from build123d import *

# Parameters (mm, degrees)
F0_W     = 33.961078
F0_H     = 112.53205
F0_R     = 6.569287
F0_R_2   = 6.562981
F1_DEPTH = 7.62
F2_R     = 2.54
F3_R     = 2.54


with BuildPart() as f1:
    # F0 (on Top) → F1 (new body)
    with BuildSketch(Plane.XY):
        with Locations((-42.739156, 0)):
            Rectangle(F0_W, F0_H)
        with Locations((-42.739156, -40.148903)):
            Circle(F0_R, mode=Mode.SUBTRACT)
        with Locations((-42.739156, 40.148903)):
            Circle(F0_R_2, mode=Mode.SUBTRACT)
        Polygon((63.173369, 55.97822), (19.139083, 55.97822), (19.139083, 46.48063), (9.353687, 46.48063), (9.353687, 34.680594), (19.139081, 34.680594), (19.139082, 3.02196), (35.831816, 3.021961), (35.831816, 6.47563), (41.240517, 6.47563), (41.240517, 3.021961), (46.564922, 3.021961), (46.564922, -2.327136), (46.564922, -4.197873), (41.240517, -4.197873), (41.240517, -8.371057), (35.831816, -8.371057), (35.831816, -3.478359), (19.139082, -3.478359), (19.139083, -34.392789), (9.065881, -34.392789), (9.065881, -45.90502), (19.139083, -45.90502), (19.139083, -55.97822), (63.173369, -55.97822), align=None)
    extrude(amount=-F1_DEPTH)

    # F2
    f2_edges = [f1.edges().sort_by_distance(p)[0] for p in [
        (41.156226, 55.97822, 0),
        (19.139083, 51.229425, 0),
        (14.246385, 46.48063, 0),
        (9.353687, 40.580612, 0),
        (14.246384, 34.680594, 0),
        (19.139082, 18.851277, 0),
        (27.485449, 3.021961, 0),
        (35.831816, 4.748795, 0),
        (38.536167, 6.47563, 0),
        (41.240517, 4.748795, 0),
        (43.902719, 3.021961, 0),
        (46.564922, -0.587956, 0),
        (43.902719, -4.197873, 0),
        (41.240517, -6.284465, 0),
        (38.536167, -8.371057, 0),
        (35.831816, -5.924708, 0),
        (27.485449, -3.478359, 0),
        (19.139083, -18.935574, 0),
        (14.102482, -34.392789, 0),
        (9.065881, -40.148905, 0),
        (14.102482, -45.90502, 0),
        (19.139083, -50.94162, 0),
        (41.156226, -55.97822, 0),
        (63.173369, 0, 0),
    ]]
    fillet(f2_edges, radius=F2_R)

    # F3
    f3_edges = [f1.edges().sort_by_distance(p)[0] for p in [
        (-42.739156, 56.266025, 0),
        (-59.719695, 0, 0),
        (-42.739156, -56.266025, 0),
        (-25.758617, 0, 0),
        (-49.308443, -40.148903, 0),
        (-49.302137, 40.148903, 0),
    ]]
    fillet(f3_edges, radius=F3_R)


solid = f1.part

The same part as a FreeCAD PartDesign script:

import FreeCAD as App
import Part
import Sketcher

V = App.Vector
Q = App.Units.Quantity


def edges_at(feature, points):
    """Names of the edges that pass closest to the given points."""
    edges = feature.Shape.Edges
    near = lambda p: min(range(len(edges)), key=lambda i: edges[i].distToShape(Part.Vertex(*p))[0])
    return sorted({f"Edge{near(p) + 1}" for p in points})

doc = App.newDocument("Part")
params = doc.addObject("Spreadsheet::Sheet", "Params")
for row, (alias, value) in enumerate([
    ("pad1_length", "0.3 in"),
    ("fillet_radius", "0.1 in"),
    ("fillet2_radius", "0.1 in"),
], start=1):
    params.set(f"A{row}", alias)
    params.set(f"B{row}", "=" + value)
    params.setAlias(f"B{row}", alias)

body = doc.addObject("PartDesign::Body", "Body")
body.AllowCompound = True

sketch1 = body.newObject("Sketcher::SketchObject", "Sketch")
sketch1.AttachmentSupport = (doc.getObject("XY_Plane"), [""])
sketch1.MapMode = "FlatFace"
sketch1.addGeometry(Part.LineSegment(V(-59.7, 56.3, 0), V(-59.7, -56.3, 0)), False)
sketch1.addGeometry(Part.LineSegment(V(-59.7, -56.3, 0), V(-25.8, -56.3, 0)), False)
sketch1.addGeometry(Part.LineSegment(V(-25.8, -56.3, 0), V(-25.8, 56.3, 0)), False)
sketch1.addGeometry(Part.LineSegment(V(-25.8, 56.3, 0), V(-59.7, 56.3, 0)), False)
sketch1.addGeometry(Part.Circle(V(-42.7, -40.1, 0), V(0, 0, 1), 6.6), False)
sketch1.addGeometry(Part.Circle(V(-42.7, 40.1, 0), V(0, 0, 1), 6.6), False)
sketch1.addGeometry(Part.LineSegment(V(63.2, 56, 0), V(19.1, 56, 0)), False)
sketch1.addGeometry(Part.LineSegment(V(19.1, 56, 0), V(19.1, 46.5, 0)), False)
sketch1.addGeometry(Part.LineSegment(V(19.1, 46.5, 0), V(9.4, 46.5, 0)), False)
sketch1.addGeometry(Part.LineSegment(V(9.4, 46.5, 0), V(9.4, 34.7, 0)), False)
sketch1.addGeometry(Part.LineSegment(V(9.4, 34.7, 0), V(19.1, 34.7, 0)), False)
sketch1.addGeometry(Part.LineSegment(V(19.1, 34.7, 0), V(19.1, 3, 0)), False)
sketch1.addGeometry(Part.LineSegment(V(19.1, 3, 0), V(35.8, 3, 0)), False)
sketch1.addGeometry(Part.LineSegment(V(35.8, 3, 0), V(35.8, 6.5, 0)), False)
sketch1.addGeometry(Part.LineSegment(V(35.8, 6.5, 0), V(41.2, 6.5, 0)), False)
sketch1.addGeometry(Part.LineSegment(V(41.2, 6.5, 0), V(41.2, 3, 0)), False)
sketch1.addGeometry(Part.LineSegment(V(41.2, 3, 0), V(46.6, 3, 0)), False)
sketch1.addGeometry(Part.LineSegment(V(46.6, 3, 0), V(46.6, -4.2, 0)), False)
sketch1.addGeometry(Part.LineSegment(V(46.6, -4.2, 0), V(41.2, -4.2, 0)), False)
sketch1.addGeometry(Part.LineSegment(V(41.2, -4.2, 0), V(41.2, -8.4, 0)), False)
sketch1.addGeometry(Part.LineSegment(V(41.2, -8.4, 0), V(35.8, -8.4, 0)), False)
sketch1.addGeometry(Part.LineSegment(V(35.8, -8.4, 0), V(35.8, -3.5, 0)), False)
sketch1.addGeometry(Part.LineSegment(V(35.8, -3.5, 0), V(19.1, -3.5, 0)), False)
sketch1.addGeometry(Part.LineSegment(V(19.1, -3.5, 0), V(19.1, -34.4, 0)), False)
sketch1.addGeometry(Part.LineSegment(V(19.1, -34.4, 0), V(9.1, -34.4, 0)), False)
sketch1.addGeometry(Part.LineSegment(V(9.1, -34.4, 0), V(9.1, -45.9, 0)), False)
sketch1.addGeometry(Part.LineSegment(V(9.1, -45.9, 0), V(19.1, -45.9, 0)), False)
sketch1.addGeometry(Part.LineSegment(V(19.1, -45.9, 0), V(19.1, -56, 0)), False)
sketch1.addGeometry(Part.LineSegment(V(19.1, -56, 0), V(63.2, -56, 0)), False)
sketch1.addGeometry(Part.LineSegment(V(63.2, -56, 0), V(63.2, 56, 0)), False)
sketch1.addConstraint(Sketcher.Constraint("Coincident", 0, 2, 1, 1))
sketch1.addConstraint(Sketcher.Constraint("Coincident", 1, 2, 2, 1))
sketch1.addConstraint(Sketcher.Constraint("Coincident", 2, 2, 3, 1))
sketch1.addConstraint(Sketcher.Constraint("Coincident", 3, 2, 0, 1))
sketch1.addConstraint(Sketcher.Constraint("Coincident", 6, 2, 7, 1))
sketch1.addConstraint(Sketcher.Constraint("Coincident", 7, 2, 8, 1))
sketch1.addConstraint(Sketcher.Constraint("Coincident", 8, 2, 9, 1))
sketch1.addConstraint(Sketcher.Constraint("Coincident", 9, 2, 10, 1))
sketch1.addConstraint(Sketcher.Constraint("Coincident", 10, 2, 11, 1))
sketch1.addConstraint(Sketcher.Constraint("Coincident", 11, 2, 12, 1))
sketch1.addConstraint(Sketcher.Constraint("Coincident", 12, 2, 13, 1))
sketch1.addConstraint(Sketcher.Constraint("Coincident", 13, 2, 14, 1))
sketch1.addConstraint(Sketcher.Constraint("Coincident", 14, 2, 15, 1))
sketch1.addConstraint(Sketcher.Constraint("Coincident", 15, 2, 16, 1))
sketch1.addConstraint(Sketcher.Constraint("Coincident", 16, 2, 17, 1))
sketch1.addConstraint(Sketcher.Constraint("Coincident", 17, 2, 18, 1))
sketch1.addConstraint(Sketcher.Constraint("Coincident", 18, 2, 19, 1))
sketch1.addConstraint(Sketcher.Constraint("Coincident", 19, 2, 20, 1))
sketch1.addConstraint(Sketcher.Constraint("Coincident", 20, 2, 21, 1))
sketch1.addConstraint(Sketcher.Constraint("Coincident", 21, 2, 22, 1))
sketch1.addConstraint(Sketcher.Constraint("Coincident", 22, 2, 23, 1))
sketch1.addConstraint(Sketcher.Constraint("Coincident", 23, 2, 24, 1))
sketch1.addConstraint(Sketcher.Constraint("Coincident", 24, 2, 25, 1))
sketch1.addConstraint(Sketcher.Constraint("Coincident", 25, 2, 26, 1))
sketch1.addConstraint(Sketcher.Constraint("Coincident", 26, 2, 27, 1))
sketch1.addConstraint(Sketcher.Constraint("Coincident", 27, 2, 28, 1))
sketch1.addConstraint(Sketcher.Constraint("Coincident", 28, 2, 29, 1))
sketch1.addConstraint(Sketcher.Constraint("Coincident", 29, 2, 6, 1))
sketch1.addConstraint(Sketcher.Constraint("Vertical", 0))
sketch1.addConstraint(Sketcher.Constraint("Horizontal", 1))
sketch1.addConstraint(Sketcher.Constraint("Vertical", 2))
sketch1.addConstraint(Sketcher.Constraint("Horizontal", 3))
sketch1.addConstraint(Sketcher.Constraint("Horizontal", 6))
sketch1.addConstraint(Sketcher.Constraint("Vertical", 7))
sketch1.addConstraint(Sketcher.Constraint("Horizontal", 8))
sketch1.addConstraint(Sketcher.Constraint("Vertical", 9))
sketch1.addConstraint(Sketcher.Constraint("Horizontal", 10))
sketch1.addConstraint(Sketcher.Constraint("Vertical", 11))
sketch1.addConstraint(Sketcher.Constraint("Horizontal", 12))
sketch1.addConstraint(Sketcher.Constraint("Vertical", 13))
sketch1.addConstraint(Sketcher.Constraint("Horizontal", 14))
sketch1.addConstraint(Sketcher.Constraint("Vertical", 15))
sketch1.addConstraint(Sketcher.Constraint("Horizontal", 16))
sketch1.addConstraint(Sketcher.Constraint("Vertical", 17))
sketch1.addConstraint(Sketcher.Constraint("Horizontal", 18))
sketch1.addConstraint(Sketcher.Constraint("Vertical", 19))
sketch1.addConstraint(Sketcher.Constraint("Horizontal", 20))
sketch1.addConstraint(Sketcher.Constraint("Vertical", 21))
sketch1.addConstraint(Sketcher.Constraint("Horizontal", 22))
sketch1.addConstraint(Sketcher.Constraint("Vertical", 23))
sketch1.addConstraint(Sketcher.Constraint("Horizontal", 24))
sketch1.addConstraint(Sketcher.Constraint("Vertical", 25))
sketch1.addConstraint(Sketcher.Constraint("Horizontal", 26))
sketch1.addConstraint(Sketcher.Constraint("Vertical", 27))
sketch1.addConstraint(Sketcher.Constraint("Horizontal", 28))
sketch1.addConstraint(Sketcher.Constraint("Vertical", 29))
sketch1.addConstraint(Sketcher.Constraint("Symmetric", 4, 3, 5, 3, -1))
sketch1.addConstraint(Sketcher.Constraint("Symmetric", 6, 2, 27, 2, -1))
sketch1.addConstraint(Sketcher.Constraint("Horizontal", 12, 2, 15, 2))
sketch1.addConstraint(Sketcher.Constraint("Vertical", 7, 2, 10, 2))
sketch1.addConstraint(Sketcher.Constraint("Vertical", 15, 2, 18, 2))
sketch1.addConstraint(Sketcher.Constraint("Vertical", 13, 2, 20, 2))
sketch1.addConstraint(Sketcher.Constraint("Vertical", 11, 2, 22, 2))
sketch1.addConstraint(Sketcher.Constraint("DistanceY", 13, 2, 7, 2, Q("1.575 in")))
sketch1.addConstraint(Sketcher.Constraint("Diameter", 4, Q("13.138574 mm")))
sketch1.addConstraint(Sketcher.Constraint("Diameter", 5, Q("13.125962 mm")))
sketch1.addConstraint(Sketcher.Constraint("DistanceX", 14, 1, 14, 2, Q("5.408701 mm")))
sketch1.addConstraint(Sketcher.Constraint("DistanceY", 21, 1, 21, 2, Q("4.892698 mm")))
sketch1.addConstraint(Sketcher.Constraint("DistanceY", 27, 2, 27, 1, Q("10.0732 mm")))
sketch1.addConstraint(Sketcher.Constraint("DistanceY", 0, 2, 0, 1, Q("112.53205 mm")))
sketch1.addConstraint(Sketcher.Constraint("DistanceY", 7, 2, 7, 1, Q("9.49759 mm")))
sketch1.addConstraint(Sketcher.Constraint("DistanceY", 13, 1, 13, 2, Q("3.453669 mm")))
sketch1.addConstraint(Sketcher.Constraint("DistanceY", 23, 2, 23, 1, Q("30.91443 mm")))
sketch1.addConstraint(Sketcher.Constraint("DistanceY", 25, 2, 25, 1, Q("11.512231 mm")))
sketch1.addConstraint(Sketcher.Constraint("DistanceY", 29, 1, 29, 2, Q("111.95644 mm")))
sketch1.addConstraint(Sketcher.Constraint("DistanceX", 2, 2, 6, 2, Q("44.8977 mm")))
sketch1.addConstraint(Sketcher.Constraint("DistanceX", 24, 2, 22, 2, Q("10.073201 mm")))
sketch1.addConstraint(Sketcher.Constraint("DistanceX", 1, 1, 1, 2, Q("33.961078 mm")))
sketch1.addConstraint(Sketcher.Constraint("DistanceX", 6, 2, 6, 1, Q("44.034286 mm")))
sketch1.addConstraint(Sketcher.Constraint("DistanceX", 8, 2, 8, 1, Q("9.785396 mm")))
sketch1.addConstraint(Sketcher.Constraint("DistanceX", 12, 1, 12, 2, Q("16.692734 mm")))
sketch1.addConstraint(Sketcher.Constraint("DistanceX", 16, 1, 16, 2, Q("5.324405 mm")))
sketch1.addConstraint(Sketcher.Constraint("DistanceY", 9, 2, 9, 1, Q("11.800036 mm")))
sketch1.addConstraint(Sketcher.Constraint("DistanceY", 17, 2, 17, 1, Q("7.219834 mm")))
sketch1.addConstraint(Sketcher.Constraint("DistanceX", -1, 1, 10, 2, Q("19.139081 mm")))
sketch1.addConstraint(Sketcher.Constraint("DistanceX", 0, 2, 4, 3, Q("16.980539 mm")))
sketch1.addConstraint(Sketcher.Constraint("DistanceY", 0, 2, 5, 3, Q("96.414928 mm")))
sketch1.addConstraint(Sketcher.Constraint("DistanceY", 4, 3, 2, 2, Q("96.414928 mm")))
pad1 = body.newObject("PartDesign::Pad", "Pad")
pad1.Profile = sketch1
pad1.setExpression("Length", "Params.pad1_length")
pad1.Reversed = True
doc.recompute()

fillet = body.newObject("PartDesign::Fillet", "Fillet")
fillet.Base = (pad1, edges_at(pad1, [
    (41.156, 55.978, 0),
    (19.139, 51.229, 0),
    (14.246, 46.481, 0),
    (9.354, 40.581, 0),
    (14.246, 34.681, 0),
    (19.139, 18.851, 0),
    (27.485, 3.022, 0),
    (35.832, 4.749, 0),
    (38.536, 6.476, 0),
    (41.241, 4.749, 0),
    (43.903, 3.022, 0),
    (46.565, -0.588, 0),
    (43.903, -4.198, 0),
    (41.241, -6.284, 0),
    (38.536, -8.371, 0),
    (35.832, -5.925, 0),
    (27.485, -3.478, 0),
    (19.139, -18.936, 0),
    (14.102, -34.393, 0),
    (9.066, -40.149, 0),
    (14.102, -45.905, 0),
    (19.139, -50.942, 0),
    (41.156, -55.978, 0),
    (63.173, 0, 0),
]))
fillet.setExpression("Radius", "Params.fillet_radius")
doc.recompute()

fillet2 = body.newObject("PartDesign::Fillet", "Fillet001")
fillet2.Base = (fillet, edges_at(fillet, [
    (-42.739, 56.266, 0),
    (-59.72, 0, 0),
    (-42.739, -56.266, 0),
    (-25.759, 0, 0),
    (-49.308, -40.149, 0),
    (-49.302, 40.149, 0),
]))
fillet2.setExpression("Radius", "Params.fillet2_radius")

doc.recompute()
